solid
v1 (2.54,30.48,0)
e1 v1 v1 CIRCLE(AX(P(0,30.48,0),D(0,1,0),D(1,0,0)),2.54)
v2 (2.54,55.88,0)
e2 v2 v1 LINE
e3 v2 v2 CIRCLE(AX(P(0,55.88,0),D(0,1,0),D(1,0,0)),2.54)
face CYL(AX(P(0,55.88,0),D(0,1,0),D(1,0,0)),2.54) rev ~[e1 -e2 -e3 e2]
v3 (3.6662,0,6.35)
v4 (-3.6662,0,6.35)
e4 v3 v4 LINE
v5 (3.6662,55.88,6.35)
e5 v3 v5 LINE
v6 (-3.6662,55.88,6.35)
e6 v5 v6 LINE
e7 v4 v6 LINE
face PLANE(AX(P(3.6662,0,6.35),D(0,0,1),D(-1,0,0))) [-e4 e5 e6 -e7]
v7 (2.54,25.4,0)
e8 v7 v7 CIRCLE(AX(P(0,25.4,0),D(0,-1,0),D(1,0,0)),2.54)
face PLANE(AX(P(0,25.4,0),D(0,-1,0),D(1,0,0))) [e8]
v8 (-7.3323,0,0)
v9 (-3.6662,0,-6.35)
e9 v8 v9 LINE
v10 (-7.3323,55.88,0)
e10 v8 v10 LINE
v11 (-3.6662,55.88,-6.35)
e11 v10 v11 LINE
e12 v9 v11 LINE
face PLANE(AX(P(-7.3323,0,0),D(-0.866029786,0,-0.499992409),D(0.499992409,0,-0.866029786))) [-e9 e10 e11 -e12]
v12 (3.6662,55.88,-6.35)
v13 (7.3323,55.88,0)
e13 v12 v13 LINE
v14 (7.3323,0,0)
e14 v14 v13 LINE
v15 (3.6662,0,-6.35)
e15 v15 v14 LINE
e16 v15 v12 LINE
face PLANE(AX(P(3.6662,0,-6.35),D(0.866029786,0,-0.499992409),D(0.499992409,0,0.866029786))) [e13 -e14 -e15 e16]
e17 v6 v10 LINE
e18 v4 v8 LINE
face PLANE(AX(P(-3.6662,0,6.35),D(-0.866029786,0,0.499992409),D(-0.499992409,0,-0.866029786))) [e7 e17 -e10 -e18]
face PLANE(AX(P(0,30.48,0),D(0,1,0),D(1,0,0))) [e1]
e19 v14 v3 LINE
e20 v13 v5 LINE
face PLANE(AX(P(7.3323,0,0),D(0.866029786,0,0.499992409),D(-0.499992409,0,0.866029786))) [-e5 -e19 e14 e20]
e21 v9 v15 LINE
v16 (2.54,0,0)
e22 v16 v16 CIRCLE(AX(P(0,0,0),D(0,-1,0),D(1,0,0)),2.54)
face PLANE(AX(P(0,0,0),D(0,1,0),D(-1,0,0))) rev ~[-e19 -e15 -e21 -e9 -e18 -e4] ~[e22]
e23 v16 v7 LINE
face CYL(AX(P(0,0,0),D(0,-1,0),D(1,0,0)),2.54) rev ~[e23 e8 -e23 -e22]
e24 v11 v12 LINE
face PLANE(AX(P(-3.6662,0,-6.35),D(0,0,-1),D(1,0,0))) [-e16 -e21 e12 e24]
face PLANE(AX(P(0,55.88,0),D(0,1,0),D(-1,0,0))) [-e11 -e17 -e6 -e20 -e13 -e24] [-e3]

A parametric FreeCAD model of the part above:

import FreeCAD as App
import Part
import Sketcher
from FreeCAD import Vector
Q = App.Units.Quantity

doc = App.newDocument("Part")
params = doc.addObject("Spreadsheet::Sheet", "Params")
for row, (alias, value) in enumerate([
    ("pad1_length", "2.2 in"),
    ("sketch2_diameter", "0.2 in"),
    ("pocket1_length", "1 in"),
    ("sketch3_diameter", "0.2 in"),
    ("pocket2_length", "1 in"),
], start=1):
    params.set(f"A{row}", alias)
    params.set(f"B{row}", "=" + value)
    params.setAlias(f"B{row}", alias)

body = doc.addObject("PartDesign::Body", "Body")

sketch1 = doc.addObject("Sketcher::SketchObject", "Sketch")
body.addObject(sketch1)
sketch1.AttachmentSupport = (doc.XZ_Plane, [""])
sketch1.MapMode = "FlatFace"
sketch1.addGeometry([
    Part.LineSegment(Vector(-4, 6, 0), Vector(4, 6, 0)),
    Part.LineSegment(Vector(4, 6, 0), Vector(7, 0, 0)),
    Part.LineSegment(Vector(7, 0, 0), Vector(4, -6, 0)),
    Part.LineSegment(Vector(4, -6, 0), Vector(-4, -6, 0)),
    Part.LineSegment(Vector(-4, -6, 0), Vector(-7, 0, 0)),
    Part.LineSegment(Vector(-7, 0, 0), Vector(-4, 6, 0)),
], False)
sketch1.addConstraint([
    Sketcher.Constraint("Coincident", 0, 2, 1, 1),
    Sketcher.Constraint("Coincident", 1, 2, 2, 1),
    Sketcher.Constraint("Coincident", 2, 2, 3, 1),
    Sketcher.Constraint("Coincident", 3, 2, 4, 1),
    Sketcher.Constraint("Coincident", 4, 2, 5, 1),
    Sketcher.Constraint("Coincident", 5, 2, 0, 1),
    Sketcher.Constraint("Horizontal", 0),
    Sketcher.Constraint("Horizontal", 3),
    Sketcher.Constraint("Symmetric", 0, 2, 3, 2, -1, 1),
    Sketcher.Constraint("Symmetric", 1, 2, 4, 2, -1, 1),
    Sketcher.Constraint("PointOnObject", 1, 2, -1),
    Sketcher.Constraint("Parallel", 2, 5),
    Sketcher.Constraint("Vertical", 0, 2, 2, 2),
    Sketcher.Constraint("DistanceY", 2, 2, 0, 2, Q("0.5 in")),
    Sketcher.Constraint("Angle", 1, Q("-60.0005 deg")),
    Sketcher.Constraint("DistanceX", 3, 2, 1, 2, Q("0.433 in")),
])
pad1 = doc.addObject("PartDesign::Pad", "Pad")
body.addObject(pad1)
pad1.Profile = sketch1
pad1.setExpression("Length", "Params.pad1_length")
pad1.Reversed = True

sketch2 = doc.addObject("Sketcher::SketchObject", "Sketch001")
body.addObject(sketch2)
sketch2.AttachmentSupport = (doc.XZ_Plane, [""])
sketch2.MapMode = "FlatFace"
sketch2.AttachmentOffset = App.Placement(Vector(0, 0, -2.2 * 25.4), App.Rotation())
sketch2.addGeometry(Part.Circle(Vector(0, 0, 0), Vector(0, 0, 1), 2.5), False)
sketch2.addConstraint([
    Sketcher.Constraint("Coincident", 0, 3, -1, 1),
    Sketcher.Constraint("Diameter", 0, Q("0.2 in")),
])
sketch2.setExpression("Constraints[1]", "Params.sketch2_diameter")
pocket1 = doc.addObject("PartDesign::Pocket", "Pocket")
body.addObject(pocket1)
pocket1.Profile = sketch2
pocket1.setExpression("Length", "Params.pocket1_length")
pocket1.Reversed = True

sketch3 = doc.addObject("Sketcher::SketchObject", "Sketch002")
body.addObject(sketch3)
sketch3.AttachmentSupport = (doc.XZ_Plane, [""])
sketch3.MapMode = "FlatFace"
sketch3.addGeometry(Part.Circle(Vector(0, 0, 0), Vector(0, 0, 1), 2.5), False)
sketch3.addConstraint([
    Sketcher.Constraint("Coincident", 0, 3, -1, 1),
    Sketcher.Constraint("Diameter", 0, Q("0.2 in")),
])
sketch3.setExpression("Constraints[1]", "Params.sketch3_diameter")
pocket2 = doc.addObject("PartDesign::Pocket", "Pocket001")
body.addObject(pocket2)
pocket2.Profile = sketch3
pocket2.setExpression("Length", "Params.pocket2_length")

doc.recompute()
